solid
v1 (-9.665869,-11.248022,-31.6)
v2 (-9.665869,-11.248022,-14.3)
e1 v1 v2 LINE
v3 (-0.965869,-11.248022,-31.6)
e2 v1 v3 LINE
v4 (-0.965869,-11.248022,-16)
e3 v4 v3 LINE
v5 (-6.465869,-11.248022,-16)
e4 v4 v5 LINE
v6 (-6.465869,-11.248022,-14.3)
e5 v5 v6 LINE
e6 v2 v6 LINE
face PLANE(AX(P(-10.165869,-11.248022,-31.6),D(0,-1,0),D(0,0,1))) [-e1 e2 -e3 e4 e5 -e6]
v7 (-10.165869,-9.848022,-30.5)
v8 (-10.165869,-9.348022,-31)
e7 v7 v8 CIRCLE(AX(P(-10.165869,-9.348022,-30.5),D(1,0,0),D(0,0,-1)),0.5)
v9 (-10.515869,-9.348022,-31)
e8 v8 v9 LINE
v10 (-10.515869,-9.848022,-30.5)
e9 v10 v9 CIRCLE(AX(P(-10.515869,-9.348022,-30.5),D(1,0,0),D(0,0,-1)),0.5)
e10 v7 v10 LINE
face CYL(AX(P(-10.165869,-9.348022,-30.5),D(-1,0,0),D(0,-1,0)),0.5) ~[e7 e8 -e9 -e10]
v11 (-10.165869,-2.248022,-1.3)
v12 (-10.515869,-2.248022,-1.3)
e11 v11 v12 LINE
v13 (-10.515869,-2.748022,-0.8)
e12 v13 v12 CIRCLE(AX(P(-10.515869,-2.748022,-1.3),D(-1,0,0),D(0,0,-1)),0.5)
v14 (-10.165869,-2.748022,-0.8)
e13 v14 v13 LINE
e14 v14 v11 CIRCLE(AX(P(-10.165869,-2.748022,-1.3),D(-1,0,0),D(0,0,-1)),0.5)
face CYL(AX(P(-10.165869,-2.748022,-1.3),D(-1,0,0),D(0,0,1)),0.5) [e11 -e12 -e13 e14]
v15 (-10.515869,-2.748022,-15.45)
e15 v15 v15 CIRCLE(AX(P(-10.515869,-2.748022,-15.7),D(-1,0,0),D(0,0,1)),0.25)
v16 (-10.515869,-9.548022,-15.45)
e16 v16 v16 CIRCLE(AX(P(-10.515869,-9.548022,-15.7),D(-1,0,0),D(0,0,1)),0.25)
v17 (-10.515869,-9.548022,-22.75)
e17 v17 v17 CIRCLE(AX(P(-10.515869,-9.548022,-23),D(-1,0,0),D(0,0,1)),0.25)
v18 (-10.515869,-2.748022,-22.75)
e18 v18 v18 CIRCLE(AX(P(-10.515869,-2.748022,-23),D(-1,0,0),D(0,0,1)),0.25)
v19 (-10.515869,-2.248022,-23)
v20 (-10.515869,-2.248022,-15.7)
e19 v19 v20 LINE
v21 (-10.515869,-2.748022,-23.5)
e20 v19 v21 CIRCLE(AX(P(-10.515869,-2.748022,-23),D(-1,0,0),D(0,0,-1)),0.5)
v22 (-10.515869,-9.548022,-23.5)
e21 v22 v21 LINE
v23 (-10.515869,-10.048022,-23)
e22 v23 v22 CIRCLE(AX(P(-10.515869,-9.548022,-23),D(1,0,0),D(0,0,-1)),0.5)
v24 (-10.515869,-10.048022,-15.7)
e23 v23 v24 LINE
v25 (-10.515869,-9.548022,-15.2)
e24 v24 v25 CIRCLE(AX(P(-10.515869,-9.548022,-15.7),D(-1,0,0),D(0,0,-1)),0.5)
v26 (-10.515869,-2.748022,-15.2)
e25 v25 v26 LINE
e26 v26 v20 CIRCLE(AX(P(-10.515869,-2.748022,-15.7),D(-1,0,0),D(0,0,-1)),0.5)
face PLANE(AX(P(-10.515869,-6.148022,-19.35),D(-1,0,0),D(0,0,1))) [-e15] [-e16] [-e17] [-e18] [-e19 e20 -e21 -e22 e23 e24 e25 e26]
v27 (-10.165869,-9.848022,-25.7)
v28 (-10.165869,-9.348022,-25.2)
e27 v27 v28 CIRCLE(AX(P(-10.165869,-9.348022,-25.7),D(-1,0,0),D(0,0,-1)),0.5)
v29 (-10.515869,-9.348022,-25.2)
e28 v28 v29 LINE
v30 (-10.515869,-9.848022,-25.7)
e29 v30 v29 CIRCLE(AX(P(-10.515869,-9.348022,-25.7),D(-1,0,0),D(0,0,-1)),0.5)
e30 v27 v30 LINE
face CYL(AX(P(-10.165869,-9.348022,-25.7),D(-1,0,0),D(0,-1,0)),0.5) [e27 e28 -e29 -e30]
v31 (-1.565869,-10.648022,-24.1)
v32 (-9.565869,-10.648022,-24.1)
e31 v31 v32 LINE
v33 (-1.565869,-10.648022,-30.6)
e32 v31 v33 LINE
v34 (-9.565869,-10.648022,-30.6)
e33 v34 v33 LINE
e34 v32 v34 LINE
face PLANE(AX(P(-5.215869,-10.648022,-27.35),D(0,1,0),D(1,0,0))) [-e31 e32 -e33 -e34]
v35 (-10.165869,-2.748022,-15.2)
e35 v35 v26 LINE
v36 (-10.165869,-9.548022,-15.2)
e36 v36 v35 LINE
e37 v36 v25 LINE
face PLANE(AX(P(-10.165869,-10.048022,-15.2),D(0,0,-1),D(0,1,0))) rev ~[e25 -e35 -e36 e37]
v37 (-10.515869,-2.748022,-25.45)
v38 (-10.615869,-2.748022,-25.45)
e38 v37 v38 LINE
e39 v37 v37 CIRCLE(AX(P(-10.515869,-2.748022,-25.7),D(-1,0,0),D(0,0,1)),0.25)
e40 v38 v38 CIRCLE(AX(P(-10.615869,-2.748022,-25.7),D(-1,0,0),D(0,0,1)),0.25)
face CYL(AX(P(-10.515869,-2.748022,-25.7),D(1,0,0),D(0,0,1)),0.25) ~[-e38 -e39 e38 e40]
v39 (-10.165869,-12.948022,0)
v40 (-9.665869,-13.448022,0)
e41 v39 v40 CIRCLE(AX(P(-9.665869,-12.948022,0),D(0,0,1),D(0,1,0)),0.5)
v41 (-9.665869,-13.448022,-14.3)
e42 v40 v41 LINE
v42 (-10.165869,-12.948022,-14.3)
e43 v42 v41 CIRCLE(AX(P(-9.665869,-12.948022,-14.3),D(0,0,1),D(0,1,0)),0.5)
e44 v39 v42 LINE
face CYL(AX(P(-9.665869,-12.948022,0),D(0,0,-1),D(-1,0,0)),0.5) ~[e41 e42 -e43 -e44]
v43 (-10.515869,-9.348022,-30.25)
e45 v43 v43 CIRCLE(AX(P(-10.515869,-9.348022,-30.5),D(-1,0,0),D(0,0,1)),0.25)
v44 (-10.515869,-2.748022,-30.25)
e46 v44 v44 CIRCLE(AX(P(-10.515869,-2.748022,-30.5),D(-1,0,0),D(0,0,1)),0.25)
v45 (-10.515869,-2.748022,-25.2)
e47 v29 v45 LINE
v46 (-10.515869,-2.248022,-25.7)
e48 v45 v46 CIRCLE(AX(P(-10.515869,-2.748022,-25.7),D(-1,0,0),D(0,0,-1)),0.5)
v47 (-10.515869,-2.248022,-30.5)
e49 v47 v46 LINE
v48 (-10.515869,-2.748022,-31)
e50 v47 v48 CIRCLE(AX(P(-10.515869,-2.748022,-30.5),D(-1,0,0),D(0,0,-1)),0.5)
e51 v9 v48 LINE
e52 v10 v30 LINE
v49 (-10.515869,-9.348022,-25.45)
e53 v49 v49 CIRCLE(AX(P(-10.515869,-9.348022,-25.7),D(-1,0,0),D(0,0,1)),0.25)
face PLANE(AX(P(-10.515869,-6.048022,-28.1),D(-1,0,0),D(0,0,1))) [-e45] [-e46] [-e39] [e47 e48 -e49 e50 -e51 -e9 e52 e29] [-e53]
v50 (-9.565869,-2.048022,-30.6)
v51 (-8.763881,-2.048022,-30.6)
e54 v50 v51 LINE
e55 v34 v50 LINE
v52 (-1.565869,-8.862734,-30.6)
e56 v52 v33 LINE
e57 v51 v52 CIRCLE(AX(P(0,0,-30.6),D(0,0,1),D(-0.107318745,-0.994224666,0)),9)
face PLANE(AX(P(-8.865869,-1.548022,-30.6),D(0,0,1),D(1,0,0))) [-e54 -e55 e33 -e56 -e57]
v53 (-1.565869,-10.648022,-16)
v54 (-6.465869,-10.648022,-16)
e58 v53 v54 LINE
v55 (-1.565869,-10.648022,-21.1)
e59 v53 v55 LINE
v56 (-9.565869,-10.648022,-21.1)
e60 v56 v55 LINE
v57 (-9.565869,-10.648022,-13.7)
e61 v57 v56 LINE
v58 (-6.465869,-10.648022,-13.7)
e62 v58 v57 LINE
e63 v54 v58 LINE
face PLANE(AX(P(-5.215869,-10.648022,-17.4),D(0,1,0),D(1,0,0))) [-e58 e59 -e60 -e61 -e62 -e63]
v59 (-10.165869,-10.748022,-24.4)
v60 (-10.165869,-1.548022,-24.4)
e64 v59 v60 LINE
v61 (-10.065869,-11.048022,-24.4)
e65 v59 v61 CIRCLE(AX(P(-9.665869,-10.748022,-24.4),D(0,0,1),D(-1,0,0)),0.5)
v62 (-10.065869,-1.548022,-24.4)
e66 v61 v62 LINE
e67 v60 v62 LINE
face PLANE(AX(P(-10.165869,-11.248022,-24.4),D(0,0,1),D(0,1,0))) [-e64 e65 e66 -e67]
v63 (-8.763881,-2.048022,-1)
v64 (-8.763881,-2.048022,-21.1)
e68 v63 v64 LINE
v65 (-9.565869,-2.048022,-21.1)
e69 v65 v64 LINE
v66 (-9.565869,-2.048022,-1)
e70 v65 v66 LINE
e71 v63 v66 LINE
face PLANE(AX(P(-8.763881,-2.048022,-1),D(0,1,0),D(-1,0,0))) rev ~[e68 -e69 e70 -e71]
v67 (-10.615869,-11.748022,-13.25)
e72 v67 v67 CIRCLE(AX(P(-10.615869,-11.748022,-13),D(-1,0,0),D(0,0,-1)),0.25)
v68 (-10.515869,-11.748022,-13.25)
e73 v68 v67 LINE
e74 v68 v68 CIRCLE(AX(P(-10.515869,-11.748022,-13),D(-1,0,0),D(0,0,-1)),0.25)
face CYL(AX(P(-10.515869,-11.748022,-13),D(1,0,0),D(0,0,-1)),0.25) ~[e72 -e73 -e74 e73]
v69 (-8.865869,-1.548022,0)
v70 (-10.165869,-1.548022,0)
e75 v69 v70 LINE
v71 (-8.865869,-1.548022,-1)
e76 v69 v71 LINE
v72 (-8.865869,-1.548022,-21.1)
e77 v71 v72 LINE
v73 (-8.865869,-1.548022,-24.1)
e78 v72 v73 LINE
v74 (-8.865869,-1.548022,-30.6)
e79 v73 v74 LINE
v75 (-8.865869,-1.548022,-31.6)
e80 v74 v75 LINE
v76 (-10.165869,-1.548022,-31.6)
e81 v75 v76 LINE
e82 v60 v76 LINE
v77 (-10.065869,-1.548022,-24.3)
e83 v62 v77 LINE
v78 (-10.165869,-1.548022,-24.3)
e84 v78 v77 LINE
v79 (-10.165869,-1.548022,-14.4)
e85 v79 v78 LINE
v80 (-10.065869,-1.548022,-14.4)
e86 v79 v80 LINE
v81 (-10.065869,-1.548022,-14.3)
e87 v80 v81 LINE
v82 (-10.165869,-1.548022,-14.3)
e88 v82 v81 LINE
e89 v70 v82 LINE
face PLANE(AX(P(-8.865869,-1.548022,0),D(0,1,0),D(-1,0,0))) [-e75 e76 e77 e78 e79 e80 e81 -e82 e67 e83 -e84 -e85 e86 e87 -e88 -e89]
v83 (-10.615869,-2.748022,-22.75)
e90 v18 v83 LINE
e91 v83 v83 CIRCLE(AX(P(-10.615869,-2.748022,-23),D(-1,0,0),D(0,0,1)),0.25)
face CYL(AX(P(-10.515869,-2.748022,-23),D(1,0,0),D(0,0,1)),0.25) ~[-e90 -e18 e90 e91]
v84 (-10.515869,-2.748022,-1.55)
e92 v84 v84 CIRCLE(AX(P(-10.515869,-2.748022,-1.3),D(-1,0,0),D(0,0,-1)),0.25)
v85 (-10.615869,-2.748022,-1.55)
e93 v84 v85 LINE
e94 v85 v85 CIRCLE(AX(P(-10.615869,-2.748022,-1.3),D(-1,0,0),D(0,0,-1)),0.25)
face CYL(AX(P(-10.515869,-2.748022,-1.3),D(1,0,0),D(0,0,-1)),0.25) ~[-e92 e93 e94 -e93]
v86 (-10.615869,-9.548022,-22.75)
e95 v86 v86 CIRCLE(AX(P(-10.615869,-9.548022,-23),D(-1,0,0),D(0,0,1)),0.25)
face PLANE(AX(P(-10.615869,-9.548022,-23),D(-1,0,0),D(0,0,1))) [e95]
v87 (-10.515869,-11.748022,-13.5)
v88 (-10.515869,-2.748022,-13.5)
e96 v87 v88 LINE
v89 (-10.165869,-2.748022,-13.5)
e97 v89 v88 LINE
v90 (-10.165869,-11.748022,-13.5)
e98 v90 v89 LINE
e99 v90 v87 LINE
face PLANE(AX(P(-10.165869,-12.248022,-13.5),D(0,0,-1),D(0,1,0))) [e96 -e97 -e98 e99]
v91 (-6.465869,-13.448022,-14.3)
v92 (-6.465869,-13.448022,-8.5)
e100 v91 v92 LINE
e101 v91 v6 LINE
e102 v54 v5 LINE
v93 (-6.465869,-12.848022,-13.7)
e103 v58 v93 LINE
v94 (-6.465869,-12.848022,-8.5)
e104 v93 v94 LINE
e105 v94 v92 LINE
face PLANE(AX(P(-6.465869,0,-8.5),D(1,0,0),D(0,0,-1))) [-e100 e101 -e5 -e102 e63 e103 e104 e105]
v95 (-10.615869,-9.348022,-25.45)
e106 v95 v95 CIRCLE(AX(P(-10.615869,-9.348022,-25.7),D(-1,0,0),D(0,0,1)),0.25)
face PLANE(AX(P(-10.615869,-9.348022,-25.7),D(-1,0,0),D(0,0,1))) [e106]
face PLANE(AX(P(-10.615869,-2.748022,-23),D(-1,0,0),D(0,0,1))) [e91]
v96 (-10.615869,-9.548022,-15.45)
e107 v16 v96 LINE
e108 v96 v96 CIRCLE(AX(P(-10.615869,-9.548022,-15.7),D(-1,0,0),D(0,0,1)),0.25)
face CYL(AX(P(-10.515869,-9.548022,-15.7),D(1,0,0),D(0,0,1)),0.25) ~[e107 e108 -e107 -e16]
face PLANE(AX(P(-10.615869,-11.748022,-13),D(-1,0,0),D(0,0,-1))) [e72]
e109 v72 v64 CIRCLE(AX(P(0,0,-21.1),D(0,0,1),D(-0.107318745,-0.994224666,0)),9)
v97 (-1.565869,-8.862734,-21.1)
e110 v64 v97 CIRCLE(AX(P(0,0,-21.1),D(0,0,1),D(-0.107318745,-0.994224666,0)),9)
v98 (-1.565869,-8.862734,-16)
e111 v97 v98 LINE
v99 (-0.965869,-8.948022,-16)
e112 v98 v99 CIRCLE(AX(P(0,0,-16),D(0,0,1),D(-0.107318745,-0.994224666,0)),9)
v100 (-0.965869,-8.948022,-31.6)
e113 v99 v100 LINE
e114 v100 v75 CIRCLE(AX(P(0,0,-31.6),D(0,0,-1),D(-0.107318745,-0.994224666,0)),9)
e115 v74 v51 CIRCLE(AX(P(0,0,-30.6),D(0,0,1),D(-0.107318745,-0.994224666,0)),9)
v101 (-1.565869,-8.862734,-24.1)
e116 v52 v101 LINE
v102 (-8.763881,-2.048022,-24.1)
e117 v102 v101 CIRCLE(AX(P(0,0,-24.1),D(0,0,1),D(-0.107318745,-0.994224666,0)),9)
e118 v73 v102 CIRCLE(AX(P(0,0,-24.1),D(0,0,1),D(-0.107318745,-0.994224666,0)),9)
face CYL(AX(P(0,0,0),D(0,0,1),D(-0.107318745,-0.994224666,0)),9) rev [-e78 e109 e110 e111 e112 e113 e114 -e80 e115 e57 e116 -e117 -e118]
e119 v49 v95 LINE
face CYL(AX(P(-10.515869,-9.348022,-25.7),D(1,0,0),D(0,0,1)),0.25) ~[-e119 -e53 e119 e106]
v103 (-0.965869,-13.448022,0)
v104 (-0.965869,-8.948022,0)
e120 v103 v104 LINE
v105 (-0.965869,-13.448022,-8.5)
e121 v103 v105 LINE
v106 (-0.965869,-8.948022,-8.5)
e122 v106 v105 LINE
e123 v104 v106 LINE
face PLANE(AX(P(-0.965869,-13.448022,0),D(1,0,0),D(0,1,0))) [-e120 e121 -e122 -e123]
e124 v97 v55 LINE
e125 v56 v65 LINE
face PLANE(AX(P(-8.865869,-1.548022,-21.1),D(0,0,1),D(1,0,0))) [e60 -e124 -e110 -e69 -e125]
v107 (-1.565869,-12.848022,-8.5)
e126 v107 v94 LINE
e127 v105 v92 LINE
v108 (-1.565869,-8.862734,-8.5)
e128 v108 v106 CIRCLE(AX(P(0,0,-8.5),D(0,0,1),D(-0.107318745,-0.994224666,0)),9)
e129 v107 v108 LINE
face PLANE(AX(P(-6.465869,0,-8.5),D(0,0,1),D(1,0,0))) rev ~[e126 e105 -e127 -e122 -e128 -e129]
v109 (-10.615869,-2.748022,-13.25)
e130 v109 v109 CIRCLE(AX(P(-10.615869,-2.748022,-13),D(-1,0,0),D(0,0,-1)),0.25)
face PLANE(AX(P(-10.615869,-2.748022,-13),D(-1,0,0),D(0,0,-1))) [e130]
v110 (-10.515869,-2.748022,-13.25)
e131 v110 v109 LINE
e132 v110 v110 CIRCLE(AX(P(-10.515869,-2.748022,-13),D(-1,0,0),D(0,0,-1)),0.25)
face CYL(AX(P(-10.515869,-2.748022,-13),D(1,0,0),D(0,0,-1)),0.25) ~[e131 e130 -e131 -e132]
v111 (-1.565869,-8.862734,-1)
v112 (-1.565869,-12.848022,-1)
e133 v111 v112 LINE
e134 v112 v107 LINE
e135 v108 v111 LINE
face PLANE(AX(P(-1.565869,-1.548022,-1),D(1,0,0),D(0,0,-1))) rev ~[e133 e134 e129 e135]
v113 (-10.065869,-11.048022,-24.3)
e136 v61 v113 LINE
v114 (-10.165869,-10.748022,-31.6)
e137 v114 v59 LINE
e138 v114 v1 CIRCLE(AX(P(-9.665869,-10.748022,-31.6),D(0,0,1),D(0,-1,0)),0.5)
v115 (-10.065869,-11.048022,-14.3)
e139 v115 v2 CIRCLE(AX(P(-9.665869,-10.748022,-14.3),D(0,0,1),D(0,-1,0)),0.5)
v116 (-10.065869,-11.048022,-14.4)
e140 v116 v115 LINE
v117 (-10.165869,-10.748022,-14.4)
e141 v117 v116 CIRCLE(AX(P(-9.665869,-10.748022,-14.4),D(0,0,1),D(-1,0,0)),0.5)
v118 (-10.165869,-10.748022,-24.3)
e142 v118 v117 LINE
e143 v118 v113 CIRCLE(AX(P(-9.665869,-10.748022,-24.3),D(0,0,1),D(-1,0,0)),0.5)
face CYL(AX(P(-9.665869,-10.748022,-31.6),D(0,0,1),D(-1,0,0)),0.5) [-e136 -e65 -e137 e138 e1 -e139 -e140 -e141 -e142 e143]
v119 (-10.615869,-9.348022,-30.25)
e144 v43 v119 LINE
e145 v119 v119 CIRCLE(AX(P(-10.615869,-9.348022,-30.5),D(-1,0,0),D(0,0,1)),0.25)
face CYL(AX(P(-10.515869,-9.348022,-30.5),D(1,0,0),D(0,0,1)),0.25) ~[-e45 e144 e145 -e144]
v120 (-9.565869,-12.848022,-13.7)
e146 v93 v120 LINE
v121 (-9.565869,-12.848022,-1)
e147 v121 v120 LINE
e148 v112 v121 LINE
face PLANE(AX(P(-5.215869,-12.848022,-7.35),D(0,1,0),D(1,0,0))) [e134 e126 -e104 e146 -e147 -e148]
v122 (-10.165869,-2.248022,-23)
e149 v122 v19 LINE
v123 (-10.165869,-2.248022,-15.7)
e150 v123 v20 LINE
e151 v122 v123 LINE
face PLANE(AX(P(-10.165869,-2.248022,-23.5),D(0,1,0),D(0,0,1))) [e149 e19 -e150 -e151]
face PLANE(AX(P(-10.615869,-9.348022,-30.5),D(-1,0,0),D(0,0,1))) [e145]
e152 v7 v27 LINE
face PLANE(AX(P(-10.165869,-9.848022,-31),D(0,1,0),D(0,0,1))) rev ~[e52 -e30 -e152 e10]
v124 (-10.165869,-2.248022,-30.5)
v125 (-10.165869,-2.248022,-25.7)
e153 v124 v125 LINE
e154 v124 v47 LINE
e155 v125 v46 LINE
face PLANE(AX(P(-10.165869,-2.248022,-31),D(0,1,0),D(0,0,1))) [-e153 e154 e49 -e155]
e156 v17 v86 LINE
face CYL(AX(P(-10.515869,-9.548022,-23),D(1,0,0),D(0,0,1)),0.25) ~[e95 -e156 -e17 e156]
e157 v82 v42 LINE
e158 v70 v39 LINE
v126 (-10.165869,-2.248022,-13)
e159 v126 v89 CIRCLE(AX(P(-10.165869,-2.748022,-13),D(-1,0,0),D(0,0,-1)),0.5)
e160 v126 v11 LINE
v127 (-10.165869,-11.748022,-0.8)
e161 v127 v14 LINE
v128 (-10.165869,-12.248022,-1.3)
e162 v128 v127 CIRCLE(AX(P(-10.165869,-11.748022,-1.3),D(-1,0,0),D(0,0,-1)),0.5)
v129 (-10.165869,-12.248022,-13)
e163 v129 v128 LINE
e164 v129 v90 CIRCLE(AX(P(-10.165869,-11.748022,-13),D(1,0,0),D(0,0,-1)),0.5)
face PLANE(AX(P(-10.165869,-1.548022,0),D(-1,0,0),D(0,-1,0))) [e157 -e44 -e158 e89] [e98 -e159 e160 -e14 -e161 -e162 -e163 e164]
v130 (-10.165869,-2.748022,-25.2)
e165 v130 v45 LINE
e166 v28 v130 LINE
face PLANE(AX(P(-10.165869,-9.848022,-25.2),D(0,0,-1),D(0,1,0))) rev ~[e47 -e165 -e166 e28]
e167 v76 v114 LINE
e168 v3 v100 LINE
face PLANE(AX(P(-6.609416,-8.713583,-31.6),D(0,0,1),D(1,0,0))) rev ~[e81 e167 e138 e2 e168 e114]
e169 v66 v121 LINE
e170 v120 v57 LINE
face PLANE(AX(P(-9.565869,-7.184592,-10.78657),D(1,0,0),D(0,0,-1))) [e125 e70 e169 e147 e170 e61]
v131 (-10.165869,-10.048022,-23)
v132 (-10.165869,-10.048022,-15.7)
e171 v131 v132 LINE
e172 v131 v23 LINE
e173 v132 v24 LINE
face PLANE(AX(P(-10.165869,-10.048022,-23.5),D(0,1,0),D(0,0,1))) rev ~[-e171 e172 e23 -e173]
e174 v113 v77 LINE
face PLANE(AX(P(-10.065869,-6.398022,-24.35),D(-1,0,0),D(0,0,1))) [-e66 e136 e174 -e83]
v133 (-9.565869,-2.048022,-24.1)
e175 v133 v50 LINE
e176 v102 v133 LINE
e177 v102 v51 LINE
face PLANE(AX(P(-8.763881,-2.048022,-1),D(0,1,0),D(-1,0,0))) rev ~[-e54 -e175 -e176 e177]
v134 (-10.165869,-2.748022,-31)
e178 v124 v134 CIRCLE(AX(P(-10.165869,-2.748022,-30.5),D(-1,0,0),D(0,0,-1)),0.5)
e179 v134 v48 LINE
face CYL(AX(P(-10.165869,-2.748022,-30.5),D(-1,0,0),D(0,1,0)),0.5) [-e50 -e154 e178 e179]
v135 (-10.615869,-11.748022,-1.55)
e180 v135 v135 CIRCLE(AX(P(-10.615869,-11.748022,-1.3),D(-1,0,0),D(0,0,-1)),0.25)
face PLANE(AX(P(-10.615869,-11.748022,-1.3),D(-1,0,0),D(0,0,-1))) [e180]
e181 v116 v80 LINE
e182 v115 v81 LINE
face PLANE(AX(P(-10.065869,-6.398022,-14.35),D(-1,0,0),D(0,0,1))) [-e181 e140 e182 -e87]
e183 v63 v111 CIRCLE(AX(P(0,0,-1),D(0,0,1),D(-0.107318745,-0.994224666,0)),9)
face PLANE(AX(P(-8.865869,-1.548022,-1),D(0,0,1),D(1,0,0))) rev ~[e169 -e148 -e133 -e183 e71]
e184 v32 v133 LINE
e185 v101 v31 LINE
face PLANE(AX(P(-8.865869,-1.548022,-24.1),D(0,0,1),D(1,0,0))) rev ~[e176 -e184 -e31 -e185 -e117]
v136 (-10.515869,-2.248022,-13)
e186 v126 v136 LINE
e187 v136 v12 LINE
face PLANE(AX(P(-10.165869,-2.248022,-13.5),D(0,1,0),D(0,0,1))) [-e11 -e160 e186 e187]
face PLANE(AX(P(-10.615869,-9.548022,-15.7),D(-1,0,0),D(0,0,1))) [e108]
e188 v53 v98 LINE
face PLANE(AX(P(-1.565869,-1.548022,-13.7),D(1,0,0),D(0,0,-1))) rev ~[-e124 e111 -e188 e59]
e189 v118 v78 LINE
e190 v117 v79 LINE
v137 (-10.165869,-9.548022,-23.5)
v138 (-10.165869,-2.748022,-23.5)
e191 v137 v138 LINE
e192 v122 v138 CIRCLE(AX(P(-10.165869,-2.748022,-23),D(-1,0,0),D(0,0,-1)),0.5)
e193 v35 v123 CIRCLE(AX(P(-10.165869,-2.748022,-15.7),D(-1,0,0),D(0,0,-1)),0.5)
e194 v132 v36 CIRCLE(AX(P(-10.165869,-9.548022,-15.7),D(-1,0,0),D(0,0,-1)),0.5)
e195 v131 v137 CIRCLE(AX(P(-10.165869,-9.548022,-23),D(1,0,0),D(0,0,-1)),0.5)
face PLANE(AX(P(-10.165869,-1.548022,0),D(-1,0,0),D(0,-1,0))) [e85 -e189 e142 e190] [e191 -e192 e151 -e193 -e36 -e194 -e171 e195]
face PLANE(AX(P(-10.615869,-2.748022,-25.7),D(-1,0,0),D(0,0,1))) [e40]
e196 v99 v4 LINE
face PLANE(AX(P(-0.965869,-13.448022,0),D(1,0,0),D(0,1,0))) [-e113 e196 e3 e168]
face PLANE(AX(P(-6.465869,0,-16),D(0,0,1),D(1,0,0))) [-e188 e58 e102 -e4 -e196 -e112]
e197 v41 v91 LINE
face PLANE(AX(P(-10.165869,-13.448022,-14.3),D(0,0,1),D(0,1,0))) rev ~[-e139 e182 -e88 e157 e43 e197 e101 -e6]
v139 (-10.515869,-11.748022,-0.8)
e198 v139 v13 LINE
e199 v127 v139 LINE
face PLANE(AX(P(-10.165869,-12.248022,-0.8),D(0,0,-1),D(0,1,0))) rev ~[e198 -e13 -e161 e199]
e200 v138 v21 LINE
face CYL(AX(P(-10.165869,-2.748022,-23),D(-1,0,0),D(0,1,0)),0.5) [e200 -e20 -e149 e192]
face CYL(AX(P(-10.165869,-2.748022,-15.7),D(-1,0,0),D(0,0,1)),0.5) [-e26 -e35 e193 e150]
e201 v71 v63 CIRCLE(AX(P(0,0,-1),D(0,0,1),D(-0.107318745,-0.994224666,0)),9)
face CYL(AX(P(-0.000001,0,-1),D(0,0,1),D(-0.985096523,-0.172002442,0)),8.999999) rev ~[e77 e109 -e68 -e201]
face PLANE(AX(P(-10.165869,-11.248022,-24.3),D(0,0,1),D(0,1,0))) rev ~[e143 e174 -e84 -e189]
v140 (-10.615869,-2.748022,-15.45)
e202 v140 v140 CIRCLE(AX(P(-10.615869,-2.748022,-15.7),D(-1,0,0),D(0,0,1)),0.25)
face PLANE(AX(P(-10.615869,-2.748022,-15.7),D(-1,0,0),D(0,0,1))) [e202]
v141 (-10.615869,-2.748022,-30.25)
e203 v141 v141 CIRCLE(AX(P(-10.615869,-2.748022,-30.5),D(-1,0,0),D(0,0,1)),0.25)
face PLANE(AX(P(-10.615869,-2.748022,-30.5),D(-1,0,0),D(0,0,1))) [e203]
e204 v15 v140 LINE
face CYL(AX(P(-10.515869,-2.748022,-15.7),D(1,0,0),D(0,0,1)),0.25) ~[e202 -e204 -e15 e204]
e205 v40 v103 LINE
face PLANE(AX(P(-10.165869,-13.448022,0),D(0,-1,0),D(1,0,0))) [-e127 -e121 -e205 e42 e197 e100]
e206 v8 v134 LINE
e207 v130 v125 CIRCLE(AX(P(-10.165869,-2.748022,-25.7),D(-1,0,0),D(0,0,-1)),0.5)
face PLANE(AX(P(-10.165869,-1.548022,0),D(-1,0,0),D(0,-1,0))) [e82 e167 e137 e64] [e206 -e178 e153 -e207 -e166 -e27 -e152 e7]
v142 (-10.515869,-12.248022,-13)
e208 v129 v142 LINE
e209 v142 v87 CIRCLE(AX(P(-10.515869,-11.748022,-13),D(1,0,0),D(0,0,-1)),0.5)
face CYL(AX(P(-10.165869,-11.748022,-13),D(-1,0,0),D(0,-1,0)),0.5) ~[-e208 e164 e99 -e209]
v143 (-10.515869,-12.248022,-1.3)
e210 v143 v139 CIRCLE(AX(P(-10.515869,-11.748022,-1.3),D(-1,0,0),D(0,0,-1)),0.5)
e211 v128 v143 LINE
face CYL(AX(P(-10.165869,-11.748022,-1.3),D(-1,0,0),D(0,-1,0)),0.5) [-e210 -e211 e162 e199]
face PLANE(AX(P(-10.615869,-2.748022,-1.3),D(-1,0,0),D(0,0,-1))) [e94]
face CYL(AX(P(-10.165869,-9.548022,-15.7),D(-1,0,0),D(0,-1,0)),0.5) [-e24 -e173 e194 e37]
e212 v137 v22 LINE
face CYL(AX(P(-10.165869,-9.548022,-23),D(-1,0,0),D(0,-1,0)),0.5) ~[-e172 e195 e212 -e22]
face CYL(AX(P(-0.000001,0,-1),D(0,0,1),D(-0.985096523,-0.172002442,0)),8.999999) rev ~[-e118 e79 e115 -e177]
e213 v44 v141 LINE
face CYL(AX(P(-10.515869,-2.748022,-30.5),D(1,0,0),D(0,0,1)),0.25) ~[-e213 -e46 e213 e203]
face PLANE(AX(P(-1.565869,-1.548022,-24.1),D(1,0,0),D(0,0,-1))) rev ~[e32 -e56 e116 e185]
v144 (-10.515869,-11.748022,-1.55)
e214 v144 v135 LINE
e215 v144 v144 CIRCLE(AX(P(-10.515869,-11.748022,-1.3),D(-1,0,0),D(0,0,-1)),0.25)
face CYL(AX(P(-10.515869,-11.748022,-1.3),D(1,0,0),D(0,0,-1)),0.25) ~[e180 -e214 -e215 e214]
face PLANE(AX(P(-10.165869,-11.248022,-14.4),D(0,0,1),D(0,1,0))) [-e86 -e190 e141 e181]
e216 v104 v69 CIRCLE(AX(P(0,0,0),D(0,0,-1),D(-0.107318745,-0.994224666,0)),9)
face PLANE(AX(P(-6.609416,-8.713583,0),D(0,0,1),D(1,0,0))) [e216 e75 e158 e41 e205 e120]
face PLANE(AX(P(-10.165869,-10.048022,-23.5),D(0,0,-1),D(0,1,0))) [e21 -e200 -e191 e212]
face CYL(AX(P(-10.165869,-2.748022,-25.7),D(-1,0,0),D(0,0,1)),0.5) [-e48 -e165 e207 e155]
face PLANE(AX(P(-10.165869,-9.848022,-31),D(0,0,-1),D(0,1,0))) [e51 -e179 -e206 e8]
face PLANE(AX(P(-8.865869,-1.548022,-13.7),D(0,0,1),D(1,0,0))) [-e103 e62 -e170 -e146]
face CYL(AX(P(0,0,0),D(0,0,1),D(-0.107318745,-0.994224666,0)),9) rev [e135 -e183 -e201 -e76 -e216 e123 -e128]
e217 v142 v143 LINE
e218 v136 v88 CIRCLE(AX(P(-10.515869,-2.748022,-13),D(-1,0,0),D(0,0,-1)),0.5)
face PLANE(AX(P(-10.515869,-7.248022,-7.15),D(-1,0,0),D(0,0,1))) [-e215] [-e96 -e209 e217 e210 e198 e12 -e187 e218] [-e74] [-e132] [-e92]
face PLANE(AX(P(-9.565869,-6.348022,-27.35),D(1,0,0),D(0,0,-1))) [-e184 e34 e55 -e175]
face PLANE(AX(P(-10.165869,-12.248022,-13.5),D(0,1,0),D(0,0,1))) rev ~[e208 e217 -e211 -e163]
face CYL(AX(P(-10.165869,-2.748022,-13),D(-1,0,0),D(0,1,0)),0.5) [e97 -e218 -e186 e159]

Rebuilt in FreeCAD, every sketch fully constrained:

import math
import FreeCAD as App
import Part
import Sketcher

V = App.Vector
Q = App.Units.Quantity


def edges_at(feature, points):
    """Names of the edges that pass closest to the given points."""
    edges = feature.Shape.Edges
    near = lambda p: min(range(len(edges)), key=lambda i: edges[i].distToShape(Part.Vertex(*p))[0])
    return sorted({f"Edge{near(p) + 1}" for p in points})

doc = App.newDocument("Part")
params = doc.addObject("Spreadsheet::Sheet", "Params")
for row, (alias, value) in enumerate([
    ("sketch1_radius", "9 mm"),
    ("sketch1_width", "1.3 mm"),
    ("sketch1_width2", "9.2 mm"),
    ("sketch1_height", "4.5 mm"),
    ("sketch1_height2", "11.9 mm"),
    ("pad1_length", "31.6 mm"),
    ("sketch2_width", "10 mm"),
    ("sketch2_width2", "7.8 mm"),
    ("sketch2_width3", "7.6 mm"),
    ("sketch2_height", "12.7 mm"),
    ("sketch2_height2", "8.3 mm"),
    ("pad2_length", "0.35 mm"),
    ("fillet_radius", "0.5 mm"),
    ("sketch3_diameter", "0.5 mm"),
    ("pad3_length", "0.1 mm"),
    ("sketch4_width", "2.2 mm"),
    ("sketch4_height", "17.3 mm"),
    ("fillet2_radius", "0.5 mm"),
    ("sketch5_width", "9.7 mm"),
    ("sketch5_height", "0.1 mm"),
    ("pocket2_length", "0.1 mm"),
    ("sketch6_width", "5.5 mm"),
    ("sketch6_height", "7.5 mm"),
    ("sketch7_width", "7.3 mm"),
    ("sketch7_height", "12.7 mm"),
    ("pocket4_length", "11.3 mm"),
    ("sketch8_width", "7.3 mm"),
    ("sketch8_height", "7.4 mm"),
    ("sketch8_height2", "6.5 mm"),
    ("pocket5_length", "9.1 mm"),
    ("sketch9_width", "2.2 mm"),
    ("sketch9_width2", "8.6 mm"),
    ("sketch9_height", "12.7 mm"),
    ("sketch9_height2", "7.4 mm"),
    ("sketch9_height3", "6.5 mm"),
    ("pocket6_length", "0.7 mm"),
    ("sketch10_radius", "8.999999 mm"),
    ("sketch10_height", "0.5 mm"),
    ("pad5_length", "29.6 mm"),
], start=1):
    params.set(f"A{row}", alias)
    params.set(f"B{row}", "=" + value)
    params.setAlias(f"B{row}", alias)

body = doc.addObject("PartDesign::Body", "Body")

# Sketch on XY plane
sketch1 = body.newObject("Sketcher::SketchObject", "Sketch")
sketch1.AttachmentSupport = (doc.getObject("XY_Plane"), [""])
sketch1.MapMode = "FlatFace"
sketch1.addGeometry([
    Part.LineSegment(V(-0.965869, -13.448022, 0), V(-0.965869, -8.948022, 0)),  # 0
    Part.ArcOfCircle(Part.Circle(V(0, 0, 0), V(0, 0, 1), 9), math.radians(-170.095734), math.radians(-96.160776)),  # 1
    Part.LineSegment(V(-8.865869, -1.548022, 0), V(-10.165869, -1.548022, 0)),  # 2
    Part.LineSegment(V(-10.165869, -1.548022, 0), V(-10.165869, -13.448022, 0)),  # 3
    Part.LineSegment(V(-10.165869, -13.448022, 0), V(-0.965869, -13.448022, 0)),  # 4
], False)
sketch1.addConstraint([
    Sketcher.Constraint("Coincident", 0, 2, 1, 2),
    Sketcher.Constraint("Coincident", 1, 1, 2, 1),
    Sketcher.Constraint("Coincident", 2, 2, 3, 1),
    Sketcher.Constraint("Coincident", 3, 2, 4, 1),
    Sketcher.Constraint("Coincident", 4, 2, 0, 1),
    Sketcher.Constraint("Vertical", 0),
    Sketcher.Constraint("Horizontal", 2),
    Sketcher.Constraint("Vertical", 3),
    Sketcher.Constraint("Horizontal", 4),
    Sketcher.Constraint("Coincident", 1, 3, -1, 1),
    Sketcher.Constraint("Radius", 1, Q("9 mm")),
    Sketcher.Constraint("DistanceX", 2, 2, 2, 1, Q("1.3 mm")),
    Sketcher.Constraint("DistanceX", 4, 1, 4, 2, Q("9.2 mm")),
    Sketcher.Constraint("DistanceY", 0, 1, 0, 2, Q("4.5 mm")),
    Sketcher.Constraint("DistanceY", 3, 2, 3, 1, Q("11.9 mm")),
])
sketch1.setExpression("Constraints[10]", "Params.sketch1_radius")
sketch1.setExpression("Constraints[11]", "Params.sketch1_width")
sketch1.setExpression("Constraints[12]", "Params.sketch1_width2")
sketch1.setExpression("Constraints[13]", "Params.sketch1_height")
sketch1.setExpression("Constraints[14]", "Params.sketch1_height2")
pad1 = body.newObject("PartDesign::Pad", "Pad")
pad1.Profile = sketch1
pad1.setExpression("Length", "Params.pad1_length")
pad1.Reversed = True

# Sketch on YZ plane
sketch2 = body.newObject("Sketcher::SketchObject", "Sketch001")
sketch2.AttachmentSupport = (doc.getObject("YZ_Plane"), [""])
sketch2.MapMode = "FlatFace"
sketch2.AttachmentOffset = App.Placement(V(0, 0, -10.165869), App.Rotation())
sketch2.addGeometry([
    Part.LineSegment(V(-2.248022, -13.5, 0), V(-12.248022, -13.5, 0)),  # 0
    Part.LineSegment(V(-12.248022, -13.5, 0), V(-12.248022, -0.8, 0)),  # 1
    Part.LineSegment(V(-12.248022, -0.8, 0), V(-2.248022, -0.8, 0)),  # 2
    Part.LineSegment(V(-2.248022, -0.8, 0), V(-2.248022, -13.5, 0)),  # 3
    Part.LineSegment(V(-2.248022, -23.5, 0), V(-10.048022, -23.5, 0)),  # 4
    Part.LineSegment(V(-10.048022, -23.5, 0), V(-10.048022, -15.2, 0)),  # 5
    Part.LineSegment(V(-10.048022, -15.2, 0), V(-2.248022, -15.2, 0)),  # 6
    Part.LineSegment(V(-2.248022, -15.2, 0), V(-2.248022, -23.5, 0)),  # 7
    Part.LineSegment(V(-2.248022, -31, 0), V(-9.848022, -31, 0)),  # 8
    Part.LineSegment(V(-9.848022, -31, 0), V(-9.848022, -25.2, 0)),  # 9
    Part.LineSegment(V(-9.848022, -25.2, 0), V(-2.248022, -25.2, 0)),  # 10
    Part.LineSegment(V(-2.248022, -25.2, 0), V(-2.248022, -31, 0)),  # 11
], False)
sketch2.addConstraint([
    Sketcher.Constraint("Coincident", 0, 2, 1, 1),
    Sketcher.Constraint("Coincident", 1, 2, 2, 1),
    Sketcher.Constraint("Coincident", 2, 2, 3, 1),
    Sketcher.Constraint("Coincident", 3, 2, 0, 1),
    Sketcher.Constraint("Coincident", 4, 2, 5, 1),
    Sketcher.Constraint("Coincident", 5, 2, 6, 1),
    Sketcher.Constraint("Coincident", 6, 2, 7, 1),
    Sketcher.Constraint("Coincident", 7, 2, 4, 1),
    Sketcher.Constraint("Coincident", 8, 2, 9, 1),
    Sketcher.Constraint("Coincident", 9, 2, 10, 1),
    Sketcher.Constraint("Coincident", 10, 2, 11, 1),
    Sketcher.Constraint("Coincident", 11, 2, 8, 1),
    Sketcher.Constraint("Horizontal", 0),
    Sketcher.Constraint("Vertical", 1),
    Sketcher.Constraint("Horizontal", 2),
    Sketcher.Constraint("Vertical", 3),
    Sketcher.Constraint("Horizontal", 4),
    Sketcher.Constraint("Vertical", 5),
    Sketcher.Constraint("Horizontal", 6),
    Sketcher.Constraint("Vertical", 7),
    Sketcher.Constraint("Horizontal", 8),
    Sketcher.Constraint("Vertical", 9),
    Sketcher.Constraint("Horizontal", 10),
    Sketcher.Constraint("Vertical", 11),
    Sketcher.Constraint("Vertical", 3, 2, 6, 2),
    Sketcher.Constraint("Vertical", 7, 2, 10, 2),
    Sketcher.Constraint("DistanceX", 0, 2, 0, 1, Q("10 mm")),
    Sketcher.Constraint("DistanceX", 4, 2, 4, 1, Q("7.8 mm")),
    Sketcher.Constraint("DistanceX", 8, 2, 8, 1, Q("7.6 mm")),
    Sketcher.Constraint("DistanceY", 1, 1, 1, 2, Q("12.7 mm")),
    Sketcher.Constraint("DistanceY", 5, 1, 5, 2, Q("8.3 mm")),
    Sketcher.Constraint("DistanceY", 9, 1, 9, 2, Q("5.8 mm")),
    Sketcher.Constraint("DistanceY", 8, 2, -1, 1, Q("31 mm")),
    Sketcher.Constraint("DistanceY", 4, 2, 0, 2, Q("10 mm")),
    Sketcher.Constraint("DistanceY", 9, 2, 5, 2, Q("10 mm")),
    Sketcher.Constraint("DistanceX", 0, 2, -1, 1, Q("12.248022 mm")),
])
sketch2.setExpression("Constraints[26]", "Params.sketch2_width")
sketch2.setExpression("Constraints[27]", "Params.sketch2_width2")
sketch2.setExpression("Constraints[28]", "Params.sketch2_width3")
sketch2.setExpression("Constraints[29]", "Params.sketch2_height")
sketch2.setExpression("Constraints[30]", "Params.sketch2_height2")
pad2 = body.newObject("PartDesign::Pad", "Pad001")
pad2.Profile = sketch2
pad2.setExpression("Length", "Params.pad2_length")
pad2.Reversed = True
doc.recompute()

fillet = body.newObject("PartDesign::Fillet", "Fillet")
fillet.Base = (pad2, edges_at(pad2, [
    (-10.341, -2.248, -13.5),
    (-10.341, -12.248, -13.5),
    (-10.341, -12.248, -0.8),
    (-10.341, -2.248, -0.8),
    (-10.341, -2.248, -31),
    (-10.341, -9.848, -31),
    (-10.341, -9.848, -25.2),
    (-10.341, -2.248, -25.2),
    (-10.341, -2.248, -23.5),
    (-10.341, -10.048, -23.5),
    (-10.341, -10.048, -15.2),
    (-10.341, -2.248, -15.2),
]))
fillet.setExpression("Radius", "Params.fillet_radius")

# Sketch on YZ plane
sketch3 = body.newObject("Sketcher::SketchObject", "Sketch002")
sketch3.AttachmentSupport = (doc.getObject("YZ_Plane"), [""])
sketch3.MapMode = "FlatFace"
sketch3.AttachmentOffset = App.Placement(V(0, 0, -10.515869), App.Rotation())
sketch3.addGeometry([
    Part.Circle(V(-2.748022, -13, 0), V(0, 0, 1), 0.25),  # 0
    Part.Circle(V(-2.748022, -1.3, 0), V(0, 0, 1), 0.25),  # 1
    Part.Circle(V(-2.748022, -23, 0), V(0, 0, 1), 0.25),  # 2
    Part.Circle(V(-9.548022, -23, 0), V(0, 0, 1), 0.25),  # 3
    Part.Circle(V(-11.748022, -1.3, 0), V(0, 0, 1), 0.25),  # 4
    Part.Circle(V(-11.748022, -13, 0), V(0, 0, 1), 0.25),  # 5
    Part.Circle(V(-2.748022, -15.7, 0), V(0, 0, 1), 0.25),  # 6
    Part.Circle(V(-9.548022, -15.7, 0), V(0, 0, 1), 0.25),  # 7
    Part.Circle(V(-2.748022, -30.5, 0), V(0, 0, 1), 0.25),  # 8
    Part.Circle(V(-2.748022, -25.7, 0), V(0, 0, 1), 0.25),  # 9
    Part.Circle(V(-9.348022, -25.7, 0), V(0, 0, 1), 0.25),  # 10
    Part.Circle(V(-9.348022, -30.5, 0), V(0, 0, 1), 0.25),  # 11
], False)
sketch3.addConstraint([
    Sketcher.Constraint("Equal", 0, 1),
    Sketcher.Constraint("Equal", 1, 2),
    Sketcher.Constraint("Equal", 2, 3),
    Sketcher.Constraint("Equal", 3, 4),
    Sketcher.Constraint("Equal", 4, 5),
    Sketcher.Constraint("Equal", 5, 6),
    Sketcher.Constraint("Equal", 6, 7),
    Sketcher.Constraint("Equal", 7, 8),
    Sketcher.Constraint("Equal", 8, 9),
    Sketcher.Constraint("Equal", 9, 10),
    Sketcher.Constraint("Equal", 10, 11),
    Sketcher.Constraint("Horizontal", 2, 3, 3, 3),
    Sketcher.Constraint("Horizontal", 1, 3, 4, 3),
    Sketcher.Constraint("Horizontal", 0, 3, 5, 3),
    Sketcher.Constraint("Horizontal", 6, 3, 7, 3),
    Sketcher.Constraint("Horizontal", 9, 3, 10, 3),
    Sketcher.Constraint("Horizontal", 8, 3, 11, 3),
    Sketcher.Constraint("Vertical", 0, 3, 1, 3),
    Sketcher.Constraint("Vertical", 1, 3, 2, 3),
    Sketcher.Constraint("Vertical", 4, 3, 5, 3),
    Sketcher.Constraint("Vertical", 2, 3, 6, 3),
    Sketcher.Constraint("Vertical", 3, 3, 7, 3),
    Sketcher.Constraint("Vertical", 6, 3, 8, 3),
    Sketcher.Constraint("Vertical", 8, 3, 9, 3),
    Sketcher.Constraint("Vertical", 10, 3, 11, 3),
    Sketcher.Constraint("Diameter", 0, Q("0.5 mm")),
    Sketcher.Constraint("DistanceY", 0, 3, -1, 1, Q("13 mm")),
    Sketcher.Constraint("DistanceY", 2, 3, -1, 1, Q("23 mm")),
    Sketcher.Constraint("DistanceX", 4, 3, 1, 3, Q("9 mm")),
    Sketcher.Constraint("DistanceY", 9, 3, 6, 3, Q("10 mm")),
    Sketcher.Constraint("DistanceY", 1, 3, -1, 1, Q("1.3 mm")),
    Sketcher.Constraint("DistanceY", 6, 3, -1, 1, Q("15.7 mm")),
    Sketcher.Constraint("DistanceY", 8, 3, -1, 1, Q("30.5 mm")),
    Sketcher.Constraint("DistanceX", 3, 3, 2, 3, Q("6.8 mm")),
    Sketcher.Constraint("DistanceX", 3, 3, 10, 3, Q("0.2 mm")),
    Sketcher.Constraint("DistanceX", 0, 3, -1, 1, Q("2.748022 mm")),
])
sketch3.setExpression("Constraints[25]", "Params.sketch3_diameter")
pad3 = body.newObject("PartDesign::Pad", "Pad002")
pad3.Profile = sketch3
pad3.setExpression("Length", "Params.pad3_length")
pad3.Reversed = True

# Sketch on YZ plane
sketch4 = body.newObject("Sketcher::SketchObject", "Sketch003")
sketch4.AttachmentSupport = (doc.getObject("YZ_Plane"), [""])
sketch4.MapMode = "FlatFace"
sketch4.AttachmentOffset = App.Placement(V(0, 0, -10.165869), App.Rotation())
sketch4.addGeometry([
    Part.LineSegment(V(-11.248022, -31.6, 0), V(-13.448022, -31.6, 0)),
    Part.LineSegment(V(-13.448022, -31.6, 0), V(-13.448022, -14.3, 0)),
    Part.LineSegment(V(-13.448022, -14.3, 0), V(-11.248022, -14.3, 0)),
    Part.LineSegment(V(-11.248022, -14.3, 0), V(-11.248022, -31.6, 0)),
], False)
sketch4.addConstraint([
    Sketcher.Constraint("Coincident", 0, 2, 1, 1),
    Sketcher.Constraint("Coincident", 1, 2, 2, 1),
    Sketcher.Constraint("Coincident", 2, 2, 3, 1),
    Sketcher.Constraint("Coincident", 3, 2, 0, 1),
    Sketcher.Constraint("Horizontal", 0),
    Sketcher.Constraint("Vertical", 1),
    Sketcher.Constraint("Horizontal", 2),
    Sketcher.Constraint("Vertical", 3),
    Sketcher.Constraint("DistanceX", 0, 2, 0, 1, Q("2.2 mm")),
    Sketcher.Constraint("DistanceY", 1, 1, 1, 2, Q("17.3 mm")),
    Sketcher.Constraint("DistanceY", 0, 2, -1, 1, Q("31.6 mm")),
    Sketcher.Constraint("DistanceX", 0, 2, -1, 1, Q("13.448022 mm")),
])
sketch4.setExpression("Constraints[8]", "Params.sketch4_width")
sketch4.setExpression("Constraints[9]", "Params.sketch4_height")
pocket1 = body.newObject("PartDesign::Pocket", "Pocket")
pocket1.Profile = sketch4
pocket1.Type = "ThroughAll"
pocket1.Reversed = True
doc.recompute()

fillet2 = body.newObject("PartDesign::Fillet", "Fillet001")
fillet2.Base = (pocket1, edges_at(pocket1, [(-10.166, -13.448, -7.15), (-10.166, -11.248, -22.95)]))
fillet2.setExpression("Radius", "Params.fillet2_radius")

# Sketch on YZ plane
sketch5 = body.newObject("Sketcher::SketchObject", "Sketch004")
sketch5.AttachmentSupport = (doc.getObject("YZ_Plane"), [""])
sketch5.MapMode = "FlatFace"
sketch5.AttachmentOffset = App.Placement(V(0, 0, -10.165869), App.Rotation())
sketch5.addGeometry([
    Part.LineSegment(V(-1.548022, -14.4, 0), V(-11.248022, -14.4, 0)),  # 0
    Part.LineSegment(V(-11.248022, -14.4, 0), V(-11.248022, -14.3, 0)),  # 1
    Part.LineSegment(V(-11.248022, -14.3, 0), V(-1.548022, -14.3, 0)),  # 2
    Part.LineSegment(V(-1.548022, -14.3, 0), V(-1.548022, -14.4, 0)),  # 3
    Part.LineSegment(V(-1.548022, -24.4, 0), V(-11.248022, -24.4, 0)),  # 4
    Part.LineSegment(V(-11.248022, -24.4, 0), V(-11.248022, -24.3, 0)),  # 5
    Part.LineSegment(V(-11.248022, -24.3, 0), V(-1.548022, -24.3, 0)),  # 6
    Part.LineSegment(V(-1.548022, -24.3, 0), V(-1.548022, -24.4, 0)),  # 7
], False)
sketch5.addConstraint([
    Sketcher.Constraint("Coincident", 0, 2, 1, 1),
    Sketcher.Constraint("Coincident", 1, 2, 2, 1),
    Sketcher.Constraint("Coincident", 2, 2, 3, 1),
    Sketcher.Constraint("Coincident", 3, 2, 0, 1),
    Sketcher.Constraint("Coincident", 4, 2, 5, 1),
    Sketcher.Constraint("Coincident", 5, 2, 6, 1),
    Sketcher.Constraint("Coincident", 6, 2, 7, 1),
    Sketcher.Constraint("Coincident", 7, 2, 4, 1),
    Sketcher.Constraint("Horizontal", 0),
    Sketcher.Constraint("Vertical", 1),
    Sketcher.Constraint("Horizontal", 2),
    Sketcher.Constraint("Vertical", 3),
    Sketcher.Constraint("Horizontal", 4),
    Sketcher.Constraint("Vertical", 5),
    Sketcher.Constraint("Horizontal", 6),
    Sketcher.Constraint("Vertical", 7),
    Sketcher.Constraint("Vertical", 1, 2, 4, 2),
    Sketcher.Constraint("Vertical", 3, 2, 6, 2),
    Sketcher.Constraint("Equal", 3, 5),
    Sketcher.Constraint("DistanceX", 0, 2, 0, 1, Q("9.7 mm")),
    Sketcher.Constraint("DistanceY", 1, 1, 1, 2, Q("0.1 mm")),
    Sketcher.Constraint("DistanceY", 4, 2, 0, 2, Q("10 mm")),
    Sketcher.Constraint("DistanceY", 0, 2, -1, 1, Q("14.4 mm")),
    Sketcher.Constraint("DistanceX", 0, 2, -1, 1, Q("11.248022 mm")),
])
sketch5.setExpression("Constraints[19]", "Params.sketch5_width")
sketch5.setExpression("Constraints[20]", "Params.sketch5_height")
pocket2 = body.newObject("PartDesign::Pocket", "Pocket001")
pocket2.Profile = sketch5
pocket2.setExpression("Length", "Params.pocket2_length")
pocket2.Reversed = True

# Sketch on XZ plane
sketch6 = body.newObject("Sketcher::SketchObject", "Sketch005")
sketch6.AttachmentSupport = (doc.getObject("XZ_Plane"), [""])
sketch6.MapMode = "FlatFace"
sketch6.addGeometry([
    Part.LineSegment(V(-6.465869, -16, 0), V(-6.465869, -8.5, 0)),
    Part.LineSegment(V(-6.465869, -8.5, 0), V(-0.965869, -8.5, 0)),
    Part.LineSegment(V(-0.965869, -8.5, 0), V(-0.965869, -16, 0)),
    Part.LineSegment(V(-0.965869, -16, 0), V(-6.465869, -16, 0)),
], False)
sketch6.addConstraint([
    Sketcher.Constraint("Coincident", 0, 2, 1, 1),
    Sketcher.Constraint("Coincident", 1, 2, 2, 1),
    Sketcher.Constraint("Coincident", 2, 2, 3, 1),
    Sketcher.Constraint("Coincident", 3, 2, 0, 1),
    Sketcher.Constraint("Vertical", 0),
    Sketcher.Constraint("Horizontal", 1),
    Sketcher.Constraint("Vertical", 2),
    Sketcher.Constraint("Horizontal", 3),
    Sketcher.Constraint("DistanceX", 1, 1, 1, 2, Q("5.5 mm")),
    Sketcher.Constraint("DistanceY", 0, 1, 0, 2, Q("7.5 mm")),
    Sketcher.Constraint("DistanceY", 2, 2, -1, 1, Q("16 mm")),
    Sketcher.Constraint("DistanceX", 0, 2, -1, 1, Q("6.465869 mm")),
])
sketch6.setExpression("Constraints[8]", "Params.sketch6_width")
sketch6.setExpression("Constraints[9]", "Params.sketch6_height")
pocket3 = body.newObject("PartDesign::Pocket", "Pocket002")
pocket3.Profile = sketch6
pocket3.Type = "ThroughAll"
pocket3.Reversed = True

# Sketch on XZ plane
sketch7 = body.newObject("Sketcher::SketchObject", "Sketch006")
sketch7.AttachmentSupport = (doc.getObject("XZ_Plane"), [""])
sketch7.MapMode = "FlatFace"
sketch7.AttachmentOffset = App.Placement(V(0, 0, 1.548022), App.Rotation())
sketch7.addGeometry([
    Part.LineSegment(V(-8.865869, -13.7, 0), V(-8.865869, -1, 0)),
    Part.LineSegment(V(-8.865869, -1, 0), V(-1.565869, -1, 0)),
    Part.LineSegment(V(-1.565869, -1, 0), V(-1.565869, -13.7, 0)),
    Part.LineSegment(V(-1.565869, -13.7, 0), V(-8.865869, -13.7, 0)),
], False)
sketch7.addConstraint([
    Sketcher.Constraint("Coincident", 0, 2, 1, 1),
    Sketcher.Constraint("Coincident", 1, 2, 2, 1),
    Sketcher.Constraint("Coincident", 2, 2, 3, 1),
    Sketcher.Constraint("Coincident", 3, 2, 0, 1),
    Sketcher.Constraint("Vertical", 0),
    Sketcher.Constraint("Horizontal", 1),
    Sketcher.Constraint("Vertical", 2),
    Sketcher.Constraint("Horizontal", 3),
    Sketcher.Constraint("DistanceX", 1, 1, 1, 2, Q("7.3 mm")),
    Sketcher.Constraint("DistanceY", 0, 1, 0, 2, Q("12.7 mm")),
    Sketcher.Constraint("DistanceY", 0, 2, -1, 1, Q("1 mm")),
    Sketcher.Constraint("DistanceX", 0, 2, -1, 1, Q("8.865869 mm")),
])
sketch7.setExpression("Constraints[8]", "Params.sketch7_width")
sketch7.setExpression("Constraints[9]", "Params.sketch7_height")
pocket4 = body.newObject("PartDesign::Pocket", "Pocket003")
pocket4.Profile = sketch7
pocket4.setExpression("Length", "Params.pocket4_length")
pocket4.Reversed = True

# Sketch on XZ plane
sketch8 = body.newObject("Sketcher::SketchObject", "Sketch007")
sketch8.AttachmentSupport = (doc.getObject("XZ_Plane"), [""])
sketch8.MapMode = "FlatFace"
sketch8.AttachmentOffset = App.Placement(V(0, 0, 1.548022), App.Rotation())
sketch8.addGeometry([
    Part.LineSegment(V(-8.865869, -21.1, 0), V(-8.865869, -13.7, 0)),  # 0
    Part.LineSegment(V(-8.865869, -13.7, 0), V(-1.565869, -13.7, 0)),  # 1
    Part.LineSegment(V(-1.565869, -13.7, 0), V(-1.565869, -21.1, 0)),  # 2
    Part.LineSegment(V(-1.565869, -21.1, 0), V(-8.865869, -21.1, 0)),  # 3
    Part.LineSegment(V(-8.865869, -30.6, 0), V(-8.865869, -24.1, 0)),  # 4
    Part.LineSegment(V(-8.865869, -24.1, 0), V(-1.565869, -24.1, 0)),  # 5
    Part.LineSegment(V(-1.565869, -24.1, 0), V(-1.565869, -30.6, 0)),  # 6
    Part.LineSegment(V(-1.565869, -30.6, 0), V(-8.865869, -30.6, 0)),  # 7
], False)
sketch8.addConstraint([
    Sketcher.Constraint("Coincident", 0, 2, 1, 1),
    Sketcher.Constraint("Coincident", 1, 2, 2, 1),
    Sketcher.Constraint("Coincident", 2, 2, 3, 1),
    Sketcher.Constraint("Coincident", 3, 2, 0, 1),
    Sketcher.Constraint("Coincident", 4, 2, 5, 1),
    Sketcher.Constraint("Coincident", 5, 2, 6, 1),
    Sketcher.Constraint("Coincident", 6, 2, 7, 1),
    Sketcher.Constraint("Coincident", 7, 2, 4, 1),
    Sketcher.Constraint("Vertical", 0),
    Sketcher.Constraint("Horizontal", 1),
    Sketcher.Constraint("Vertical", 2),
    Sketcher.Constraint("Horizontal", 3),
    Sketcher.Constraint("Vertical", 4),
    Sketcher.Constraint("Horizontal", 5),
    Sketcher.Constraint("Vertical", 6),
    Sketcher.Constraint("Horizontal", 7),
    Sketcher.Constraint("Vertical", 3, 2, 4, 2),
    Sketcher.Constraint("Vertical", 2, 2, 5, 2),
    Sketcher.Constraint("DistanceX", 1, 1, 1, 2, Q("7.3 mm")),
    Sketcher.Constraint("DistanceY", 0, 1, 0, 2, Q("7.4 mm")),
    Sketcher.Constraint("DistanceY", 4, 1, 4, 2, Q("6.5 mm")),
    Sketcher.Constraint("DistanceY", 4, 2, 3, 2, Q("3 mm")),
    Sketcher.Constraint("DistanceY", 0, 2, -1, 1, Q("13.7 mm")),
    Sketcher.Constraint("DistanceX", 0, 2, -1, 1, Q("8.865869 mm")),
])
sketch8.setExpression("Constraints[18]", "Params.sketch8_width")
sketch8.setExpression("Constraints[19]", "Params.sketch8_height")
sketch8.setExpression("Constraints[20]", "Params.sketch8_height2")
pocket5 = body.newObject("PartDesign::Pocket", "Pocket004")
pocket5.Profile = sketch8
pocket5.setExpression("Length", "Params.pocket5_length")
pocket5.Reversed = True

# Sketch on YZ plane
sketch9 = body.newObject("Sketcher::SketchObject", "Sketch008")
sketch9.AttachmentSupport = (doc.getObject("YZ_Plane"), [""])
sketch9.MapMode = "FlatFace"
sketch9.AttachmentOffset = App.Placement(V(0, 0, -8.865869), App.Rotation())
sketch9.addGeometry([
    Part.LineSegment(V(-12.848022, -1, 0), V(-12.848022, -13.7, 0)),  # 0
    Part.LineSegment(V(-12.848022, -13.7, 0), V(-10.648022, -13.7, 0)),  # 1
    Part.LineSegment(V(-10.648022, -13.7, 0), V(-10.648022, -21.1, 0)),  # 2
    Part.LineSegment(V(-10.648022, -21.1, 0), V(-2.048022, -21.1, 0)),  # 3
    Part.LineSegment(V(-2.048022, -21.1, 0), V(-2.048022, -1, 0)),  # 4
    Part.LineSegment(V(-2.048022, -1, 0), V(-12.848022, -1, 0)),  # 5
    Part.LineSegment(V(-2.048022, -24.1, 0), V(-10.648022, -24.1, 0)),  # 6
    Part.LineSegment(V(-10.648022, -24.1, 0), V(-10.648022, -30.6, 0)),  # 7
    Part.LineSegment(V(-10.648022, -30.6, 0), V(-2.048022, -30.6, 0)),  # 8
    Part.LineSegment(V(-2.048022, -30.6, 0), V(-2.048022, -24.1, 0)),  # 9
], False)
sketch9.addConstraint([
    Sketcher.Constraint("Coincident", 0, 2, 1, 1),
    Sketcher.Constraint("Coincident", 1, 2, 2, 1),
    Sketcher.Constraint("Coincident", 2, 2, 3, 1),
    Sketcher.Constraint("Coincident", 3, 2, 4, 1),
    Sketcher.Constraint("Coincident", 4, 2, 5, 1),
    Sketcher.Constraint("Coincident", 5, 2, 0, 1),
    Sketcher.Constraint("Coincident", 6, 2, 7, 1),
    Sketcher.Constraint("Coincident", 7, 2, 8, 1),
    Sketcher.Constraint("Coincident", 8, 2, 9, 1),
    Sketcher.Constraint("Coincident", 9, 2, 6, 1),
    Sketcher.Constraint("Vertical", 0),
    Sketcher.Constraint("Horizontal", 1),
    Sketcher.Constraint("Vertical", 2),
    Sketcher.Constraint("Horizontal", 3),
    Sketcher.Constraint("Vertical", 4),
    Sketcher.Constraint("Horizontal", 5),
    Sketcher.Constraint("Horizontal", 6),
    Sketcher.Constraint("Vertical", 7),
    Sketcher.Constraint("Horizontal", 8),
    Sketcher.Constraint("Vertical", 9),
    Sketcher.Constraint("Vertical", 2, 2, 6, 2),
    Sketcher.Constraint("Vertical", 4, 2, 8, 2),
    Sketcher.Constraint("DistanceX", 1, 1, 1, 2, Q("2.2 mm")),
    Sketcher.Constraint("DistanceX", 3, 1, 3, 2, Q("8.6 mm")),
    Sketcher.Constraint("DistanceY", 0, 2, 0, 1, Q("12.7 mm")),
    Sketcher.Constraint("DistanceY", 2, 2, 2, 1, Q("7.4 mm")),
    Sketcher.Constraint("DistanceY", 7, 2, 7, 1, Q("6.5 mm")),
    Sketcher.Constraint("DistanceY", 4, 2, -1, 1, Q("1 mm")),
    Sketcher.Constraint("DistanceY", 6, 2, 2, 2, Q("3 mm")),
    Sketcher.Constraint("DistanceX", 0, 2, -1, 1, Q("12.848022 mm")),
])
sketch9.setExpression("Constraints[22]", "Params.sketch9_width")
sketch9.setExpression("Constraints[23]", "Params.sketch9_width2")
sketch9.setExpression("Constraints[24]", "Params.sketch9_height")
sketch9.setExpression("Constraints[25]", "Params.sketch9_height2")
sketch9.setExpression("Constraints[26]", "Params.sketch9_height3")
pocket6 = body.newObject("PartDesign::Pocket", "Pocket005")
pocket6.Profile = sketch9
pocket6.setExpression("Length", "Params.pocket6_length")

# Sketch on XY plane
sketch10 = body.newObject("Sketcher::SketchObject", "Sketch009")
sketch10.AttachmentSupport = (doc.getObject("XY_Plane"), [""])
sketch10.MapMode = "FlatFace"
sketch10.AttachmentOffset = App.Placement(V(0, 0, -1), App.Rotation())
sketch10.addGeometry([
    Part.LineSegment(V(-8.865869, -2.048022, 0), V(-8.865869, -1.548022, 0)),
    Part.ArcOfCircle(Part.Circle(V(-0.000001, 0, 0), V(0, 0, 1), 8.999999), math.radians(-170.095734), math.radians(-166.846656)),
    Part.LineSegment(V(-8.763881, -2.048022, 0), V(-8.865869, -2.048022, 0)),
], False)
sketch10.addConstraint([
    Sketcher.Constraint("Coincident", 0, 2, 1, 1),
    Sketcher.Constraint("Coincident", 1, 2, 2, 1),
    Sketcher.Constraint("Coincident", 2, 2, 0, 1),
    Sketcher.Constraint("Vertical", 0),
    Sketcher.Constraint("Horizontal", 2),
    Sketcher.Constraint("Coincident", 1, 3, -1, 1),
    Sketcher.Constraint("Radius", 1, Q("8.999999 mm")),
    Sketcher.Constraint("DistanceY", 0, 1, 0, 2, Q("0.5 mm")),
    Sketcher.Constraint("DistanceX", 2, 2, 2, 1, Q("0.101988 mm")),
])
sketch10.setExpression("Constraints[6]", "Params.sketch10_radius")
sketch10.setExpression("Constraints[7]", "Params.sketch10_height")
pad4 = body.newObject("PartDesign::Pad", "Pad003")
pad4.Profile = sketch10
pad4.Type = "UpToFirst"
pad4.Reversed = True
pad5 = body.newObject("PartDesign::Pad", "Pad004")
pad5.Profile = sketch10
pad5.setExpression("Length", "Params.pad5_length")
pad5.Reversed = True

doc.recompute()
